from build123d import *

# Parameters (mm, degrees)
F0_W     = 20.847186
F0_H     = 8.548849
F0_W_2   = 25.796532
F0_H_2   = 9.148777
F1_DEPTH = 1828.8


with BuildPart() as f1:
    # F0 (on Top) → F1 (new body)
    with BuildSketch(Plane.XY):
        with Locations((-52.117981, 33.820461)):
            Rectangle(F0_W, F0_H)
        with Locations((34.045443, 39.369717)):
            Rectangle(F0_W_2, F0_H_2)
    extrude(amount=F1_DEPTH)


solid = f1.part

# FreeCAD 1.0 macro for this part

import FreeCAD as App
import Part
import Sketcher
from FreeCAD import Vector
Q = App.Units.Quantity

doc = App.newDocument("Part")
body = doc.addObject("PartDesign::Body", "Body")
body.AllowCompound = True

# Sketch on XY plane
sketch1 = body.newObject("Sketcher::SketchObject", "Sketch")
sketch1.AttachmentSupport = (doc.getObject("XY_Plane"), [""])
sketch1.MapMode = "FlatFace"
sketch1.addGeometry([
    Part.LineSegment(Vector(-63, 38, 0), Vector(-63, 30, 0)),  # 0
    Part.LineSegment(Vector(-63, 30, 0), Vector(-42, 30, 0)),  # 1
    Part.LineSegment(Vector(-42, 30, 0), Vector(-42, 38, 0)),  # 2
    Part.LineSegment(Vector(-42, 38, 0), Vector(-63, 38, 0)),  # 3
    Part.LineSegment(Vector(21, 44, 0), Vector(21, 35, 0)),  # 4
    Part.LineSegment(Vector(21, 35, 0), Vector(47, 35, 0)),  # 5
    Part.LineSegment(Vector(47, 35, 0), Vector(47, 44, 0)),  # 6
    Part.LineSegment(Vector(47, 44, 0), Vector(21, 44, 0)),  # 7
], False)
sketch1.addConstraint([
    Sketcher.Constraint("Coincident", 0, 2, 1, 1),
    Sketcher.Constraint("Coincident", 1, 2, 2, 1),
    Sketcher.Constraint("Coincident", 2, 2, 3, 1),
    Sketcher.Constraint("Coincident", 3, 2, 0, 1),
    Sketcher.Constraint("Coincident", 4, 2, 5, 1),
    Sketcher.Constraint("Coincident", 5, 2, 6, 1),
    Sketcher.Constraint("Coincident", 6, 2, 7, 1),
    Sketcher.Constraint("Coincident", 7, 2, 4, 1),
    Sketcher.Constraint("Vertical", 0),
    Sketcher.Constraint("Horizontal", 1),
    Sketcher.Constraint("Vertical", 2),
    Sketcher.Constraint("Horizontal", 3),
    Sketcher.Constraint("Vertical", 4),
    Sketcher.Constraint("Horizontal", 5),
    Sketcher.Constraint("Vertical", 6),
    Sketcher.Constraint("Horizontal", 7),
    Sketcher.Constraint("DistanceX", 5, 1, 5, 2, Q("25.796532 mm")),
    Sketcher.Constraint("DistanceY", 0, 2, 0, 1, Q("8.548849 mm")),
    Sketcher.Constraint("DistanceX", 1, 1, 1, 2, Q("20.847186 mm")),
    Sketcher.Constraint("DistanceY", 4, 2, 4, 1, Q("9.148777 mm")),
    Sketcher.Constraint("DistanceY", -1, 1, 4, 2, Q("34.795328 mm")),
    Sketcher.Constraint("DistanceX", -1, 1, 5, 2, Q("46.943709 mm")),
    Sketcher.Constraint("DistanceY", 1, 2, 4, 2, Q("5.249292 mm")),
    Sketcher.Constraint("DistanceX", 3, 2, 4, 2, Q("83.688751 mm")),
])
pad1 = body.newObject("PartDesign::Pad", "Pad")
pad1.Profile = sketch1
pad1.Length = Q("72 in")

doc.recompute()
